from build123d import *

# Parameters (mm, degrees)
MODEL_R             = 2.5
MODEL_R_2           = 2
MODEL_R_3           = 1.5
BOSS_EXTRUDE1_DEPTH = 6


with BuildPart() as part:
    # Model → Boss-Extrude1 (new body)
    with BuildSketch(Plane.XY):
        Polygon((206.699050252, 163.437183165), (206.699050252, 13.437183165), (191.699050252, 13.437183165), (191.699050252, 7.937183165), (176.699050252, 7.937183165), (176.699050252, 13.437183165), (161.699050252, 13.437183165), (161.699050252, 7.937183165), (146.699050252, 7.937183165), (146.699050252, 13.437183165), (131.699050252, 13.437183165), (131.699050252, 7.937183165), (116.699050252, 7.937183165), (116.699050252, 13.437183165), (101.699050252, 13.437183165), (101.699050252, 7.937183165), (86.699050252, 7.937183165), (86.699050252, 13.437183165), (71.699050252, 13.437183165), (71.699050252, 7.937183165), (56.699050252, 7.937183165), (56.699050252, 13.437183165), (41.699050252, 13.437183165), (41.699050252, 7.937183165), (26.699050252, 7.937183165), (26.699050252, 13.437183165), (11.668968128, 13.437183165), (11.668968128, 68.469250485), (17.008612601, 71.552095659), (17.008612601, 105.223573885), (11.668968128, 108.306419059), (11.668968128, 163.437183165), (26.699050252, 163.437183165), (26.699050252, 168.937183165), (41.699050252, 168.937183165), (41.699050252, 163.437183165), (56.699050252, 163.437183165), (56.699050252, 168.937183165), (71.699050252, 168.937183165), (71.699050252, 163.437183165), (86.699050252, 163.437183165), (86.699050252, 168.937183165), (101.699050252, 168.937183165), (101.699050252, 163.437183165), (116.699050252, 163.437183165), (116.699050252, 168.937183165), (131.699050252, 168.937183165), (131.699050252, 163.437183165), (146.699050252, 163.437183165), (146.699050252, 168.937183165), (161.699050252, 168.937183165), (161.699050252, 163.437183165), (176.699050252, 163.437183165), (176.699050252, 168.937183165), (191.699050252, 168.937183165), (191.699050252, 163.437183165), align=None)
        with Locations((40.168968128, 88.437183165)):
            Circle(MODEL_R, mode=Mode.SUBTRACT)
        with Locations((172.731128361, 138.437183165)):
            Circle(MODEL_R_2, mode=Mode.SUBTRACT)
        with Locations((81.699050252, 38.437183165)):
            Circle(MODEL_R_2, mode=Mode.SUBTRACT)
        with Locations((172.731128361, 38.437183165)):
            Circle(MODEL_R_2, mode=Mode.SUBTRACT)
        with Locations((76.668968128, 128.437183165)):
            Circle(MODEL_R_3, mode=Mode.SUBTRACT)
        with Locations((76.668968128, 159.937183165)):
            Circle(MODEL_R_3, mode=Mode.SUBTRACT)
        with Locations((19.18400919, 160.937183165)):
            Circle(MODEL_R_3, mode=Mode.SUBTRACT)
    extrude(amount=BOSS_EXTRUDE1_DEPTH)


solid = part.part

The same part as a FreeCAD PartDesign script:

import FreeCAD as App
import Part
import Sketcher

V = App.Vector
Q = App.Units.Quantity

doc = App.newDocument("Part")
body = doc.addObject("PartDesign::Body", "Body")

# Sketch on XY plane
sketch1 = doc.addObject("Sketcher::SketchObject", "Sketch")
body.addObject(sketch1)
sketch1.AttachmentSupport = (doc.XY_Plane, [""])
sketch1.MapMode = "FlatFace"
sketch1.addGeometry([
    Part.LineSegment(V(206.7, 13.4, 0), V(206.7, 163.4, 0)),  # 0
    Part.LineSegment(V(206.7, 163.4, 0), V(191.7, 163.4, 0)),  # 1
    Part.LineSegment(V(191.7, 163.4, 0), V(191.7, 168.9, 0)),  # 2
    Part.LineSegment(V(191.7, 168.9, 0), V(176.7, 168.9, 0)),  # 3
    Part.LineSegment(V(176.7, 168.9, 0), V(176.7, 163.4, 0)),  # 4
    Part.LineSegment(V(176.7, 163.4, 0), V(161.7, 163.4, 0)),  # 5
    Part.LineSegment(V(161.7, 163.4, 0), V(161.7, 168.9, 0)),  # 6
    Part.LineSegment(V(161.7, 168.9, 0), V(146.7, 168.9, 0)),  # 7
    Part.LineSegment(V(146.7, 168.9, 0), V(146.7, 163.4, 0)),  # 8
    Part.LineSegment(V(146.7, 163.4, 0), V(131.7, 163.4, 0)),  # 9
    Part.LineSegment(V(131.7, 163.4, 0), V(131.7, 168.9, 0)),  # 10
    Part.LineSegment(V(131.7, 168.9, 0), V(116.7, 168.9, 0)),  # 11
    Part.LineSegment(V(116.7, 168.9, 0), V(116.7, 163.4, 0)),  # 12
    Part.LineSegment(V(116.7, 163.4, 0), V(101.7, 163.4, 0)),  # 13
    Part.LineSegment(V(101.7, 163.4, 0), V(101.7, 168.9, 0)),  # 14
    Part.LineSegment(V(101.7, 168.9, 0), V(86.7, 168.9, 0)),  # 15
    Part.LineSegment(V(86.7, 168.9, 0), V(86.7, 163.4, 0)),  # 16
    Part.LineSegment(V(86.7, 163.4, 0), V(71.7, 163.4, 0)),  # 17
    Part.LineSegment(V(71.7, 163.4, 0), V(71.7, 168.9, 0)),  # 18
    Part.LineSegment(V(71.7, 168.9, 0), V(56.7, 168.9, 0)),  # 19
    Part.LineSegment(V(56.7, 168.9, 0), V(56.7, 163.4, 0)),  # 20
    Part.LineSegment(V(56.7, 163.4, 0), V(41.7, 163.4, 0)),  # 21
    Part.LineSegment(V(41.7, 163.4, 0), V(41.7, 168.9, 0)),  # 22
    Part.LineSegment(V(41.7, 168.9, 0), V(26.7, 168.9, 0)),  # 23
    Part.LineSegment(V(26.7, 168.9, 0), V(26.7, 163.4, 0)),  # 24
    Part.LineSegment(V(26.7, 163.4, 0), V(11.7, 163.4, 0)),  # 25
    Part.LineSegment(V(11.7, 163.4, 0), V(11.7, 108.3, 0)),  # 26
    Part.LineSegment(V(11.7, 108.3, 0), V(17, 105.2, 0)),  # 27
    Part.LineSegment(V(17, 105.2, 0), V(17, 71.6, 0)),  # 28
    Part.LineSegment(V(17, 71.6, 0), V(11.7, 68.5, 0)),  # 29
    Part.LineSegment(V(11.7, 68.5, 0), V(11.7, 13.4, 0)),  # 30
    Part.LineSegment(V(11.7, 13.4, 0), V(26.7, 13.4, 0)),  # 31
    Part.LineSegment(V(26.7, 13.4, 0), V(26.7, 7.9, 0)),  # 32
    Part.LineSegment(V(26.7, 7.9, 0), V(41.7, 7.9, 0)),  # 33
    Part.LineSegment(V(41.7, 7.9, 0), V(41.7, 13.4, 0)),  # 34
    Part.LineSegment(V(41.7, 13.4, 0), V(56.7, 13.4, 0)),  # 35
    Part.LineSegment(V(56.7, 13.4, 0), V(56.7, 7.9, 0)),  # 36
    Part.LineSegment(V(56.7, 7.9, 0), V(71.7, 7.9, 0)),  # 37
    Part.LineSegment(V(71.7, 7.9, 0), V(71.7, 13.4, 0)),  # 38
    Part.LineSegment(V(71.7, 13.4, 0), V(86.7, 13.4, 0)),  # 39
    Part.LineSegment(V(86.7, 13.4, 0), V(86.7, 7.9, 0)),  # 40
    Part.LineSegment(V(86.7, 7.9, 0), V(101.7, 7.9, 0)),  # 41
    Part.LineSegment(V(101.7, 7.9, 0), V(101.7, 13.4, 0)),  # 42
    Part.LineSegment(V(101.7, 13.4, 0), V(116.7, 13.4, 0)),  # 43
    Part.LineSegment(V(116.7, 13.4, 0), V(116.7, 7.9, 0)),  # 44
    Part.LineSegment(V(116.7, 7.9, 0), V(131.7, 7.9, 0)),  # 45
    Part.LineSegment(V(131.7, 7.9, 0), V(131.7, 13.4, 0)),  # 46
    Part.LineSegment(V(131.7, 13.4, 0), V(146.7, 13.4, 0)),  # 47
    Part.LineSegment(V(146.7, 13.4, 0), V(146.7, 7.9, 0)),  # 48
    Part.LineSegment(V(146.7, 7.9, 0), V(161.7, 7.9, 0)),  # 49
    Part.LineSegment(V(161.7, 7.9, 0), V(161.7, 13.4, 0)),  # 50
    Part.LineSegment(V(161.7, 13.4, 0), V(176.7, 13.4, 0)),  # 51
    Part.LineSegment(V(176.7, 13.4, 0), V(176.7, 7.9, 0)),  # 52
    Part.LineSegment(V(176.7, 7.9, 0), V(191.7, 7.9, 0)),  # 53
    Part.LineSegment(V(191.7, 7.9, 0), V(191.7, 13.4, 0)),  # 54
    Part.LineSegment(V(191.7, 13.4, 0), V(206.7, 13.4, 0)),  # 55
    Part.Circle(V(172.7, 38.4, 0), V(0, 0, 1), 2),  # 56
    Part.Circle(V(81.7, 38.4, 0), V(0, 0, 1), 2),  # 57
    Part.Circle(V(40.2, 88.4, 0), V(0, 0, 1), 2.5),  # 58
    Part.Circle(V(172.7, 138.4, 0), V(0, 0, 1), 2),  # 59
    Part.Circle(V(76.7, 128.4, 0), V(0, 0, 1), 1.5),  # 60
    Part.Circle(V(76.7, 159.9, 0), V(0, 0, 1), 1.5),  # 61
    Part.Circle(V(19.2, 160.9, 0), V(0, 0, 1), 1.5),  # 62
], False)
sketch1.addConstraint([
    Sketcher.Constraint("Coincident", 0, 2, 1, 1),
    Sketcher.Constraint("Coincident", 1, 2, 2, 1),
    Sketcher.Constraint("Coincident", 2, 2, 3, 1),
    Sketcher.Constraint("Coincident", 3, 2, 4, 1),
    Sketcher.Constraint("Coincident", 4, 2, 5, 1),
    Sketcher.Constraint("Coincident", 5, 2, 6, 1),
    Sketcher.Constraint("Coincident", 6, 2, 7, 1),
    Sketcher.Constraint("Coincident", 7, 2, 8, 1),
    Sketcher.Constraint("Coincident", 8, 2, 9, 1),
    Sketcher.Constraint("Coincident", 9, 2, 10, 1),
    Sketcher.Constraint("Coincident", 10, 2, 11, 1),
    Sketcher.Constraint("Coincident", 11, 2, 12, 1),
    Sketcher.Constraint("Coincident", 12, 2, 13, 1),
    Sketcher.Constraint("Coincident", 13, 2, 14, 1),
    Sketcher.Constraint("Coincident", 14, 2, 15, 1),
    Sketcher.Constraint("Coincident", 15, 2, 16, 1),
    Sketcher.Constraint("Coincident", 16, 2, 17, 1),
    Sketcher.Constraint("Coincident", 17, 2, 18, 1),
    Sketcher.Constraint("Coincident", 18, 2, 19, 1),
    Sketcher.Constraint("Coincident", 19, 2, 20, 1),
    Sketcher.Constraint("Coincident", 20, 2, 21, 1),
    Sketcher.Constraint("Coincident", 21, 2, 22, 1),
    Sketcher.Constraint("Coincident", 22, 2, 23, 1),
    Sketcher.Constraint("Coincident", 23, 2, 24, 1),
    Sketcher.Constraint("Coincident", 24, 2, 25, 1),
    Sketcher.Constraint("Coincident", 25, 2, 26, 1),
    Sketcher.Constraint("Coincident", 26, 2, 27, 1),
    Sketcher.Constraint("Coincident", 27, 2, 28, 1),
    Sketcher.Constraint("Coincident", 28, 2, 29, 1),
    Sketcher.Constraint("Coincident", 29, 2, 30, 1),
    Sketcher.Constraint("Coincident", 30, 2, 31, 1),
    Sketcher.Constraint("Coincident", 31, 2, 32, 1),
    Sketcher.Constraint("Coincident", 32, 2, 33, 1),
    Sketcher.Constraint("Coincident", 33, 2, 34, 1),
    Sketcher.Constraint("Coincident", 34, 2, 35, 1),
    Sketcher.Constraint("Coincident", 35, 2, 36, 1),
    Sketcher.Constraint("Coincident", 36, 2, 37, 1),
    Sketcher.Constraint("Coincident", 37, 2, 38, 1),
    Sketcher.Constraint("Coincident", 38, 2, 39, 1),
    Sketcher.Constraint("Coincident", 39, 2, 40, 1),
    Sketcher.Constraint("Coincident", 40, 2, 41, 1),
    Sketcher.Constraint("Coincident", 41, 2, 42, 1),
    Sketcher.Constraint("Coincident", 42, 2, 43, 1),
    Sketcher.Constraint("Coincident", 43, 2, 44, 1),
    Sketcher.Constraint("Coincident", 44, 2, 45, 1),
    Sketcher.Constraint("Coincident", 45, 2, 46, 1),
    Sketcher.Constraint("Coincident", 46, 2, 47, 1),
    Sketcher.Constraint("Coincident", 47, 2, 48, 1),
    Sketcher.Constraint("Coincident", 48, 2, 49, 1),
    Sketcher.Constraint("Coincident", 49, 2, 50, 1),
    Sketcher.Constraint("Coincident", 50, 2, 51, 1),
    Sketcher.Constraint("Coincident", 51, 2, 52, 1),
    Sketcher.Constraint("Coincident", 52, 2, 53, 1),
    Sketcher.Constraint("Coincident", 53, 2, 54, 1),
    Sketcher.Constraint("Coincident", 54, 2, 55, 1),
    Sketcher.Constraint("Coincident", 55, 2, 0, 1),
    Sketcher.Constraint("Vertical", 0),
    Sketcher.Constraint("Horizontal", 1),
    Sketcher.Constraint("Vertical", 2),
    Sketcher.Constraint("Horizontal", 3),
    Sketcher.Constraint("Vertical", 4),
    Sketcher.Constraint("Horizontal", 5),
    Sketcher.Constraint("Vertical", 6),
    Sketcher.Constraint("Horizontal", 7),
    Sketcher.Constraint("Vertical", 8),
    Sketcher.Constraint("Horizontal", 9),
    Sketcher.Constraint("Vertical", 10),
    Sketcher.Constraint("Horizontal", 11),
    Sketcher.Constraint("Vertical", 12),
    Sketcher.Constraint("Horizontal", 13),
    Sketcher.Constraint("Vertical", 14),
    Sketcher.Constraint("Horizontal", 15),
    Sketcher.Constraint("Vertical", 16),
    Sketcher.Constraint("Horizontal", 17),
    Sketcher.Constraint("Vertical", 18),
    Sketcher.Constraint("Horizontal", 19),
    Sketcher.Constraint("Vertical", 20),
    Sketcher.Constraint("Horizontal", 21),
    Sketcher.Constraint("Vertical", 22),
    Sketcher.Constraint("Horizontal", 23),
    Sketcher.Constraint("Vertical", 24),
    Sketcher.Constraint("Horizontal", 25),
    Sketcher.Constraint("Vertical", 26),
    Sketcher.Constraint("Vertical", 28),
    Sketcher.Constraint("Vertical", 30),
    Sketcher.Constraint("Horizontal", 31),
    Sketcher.Constraint("Vertical", 32),
    Sketcher.Constraint("Horizontal", 33),
    Sketcher.Constraint("Vertical", 34),
    Sketcher.Constraint("Horizontal", 35),
    Sketcher.Constraint("Vertical", 36),
    Sketcher.Constraint("Horizontal", 37),
    Sketcher.Constraint("Vertical", 38),
    Sketcher.Constraint("Horizontal", 39),
    Sketcher.Constraint("Vertical", 40),
    Sketcher.Constraint("Horizontal", 41),
    Sketcher.Constraint("Vertical", 42),
    Sketcher.Constraint("Horizontal", 43),
    Sketcher.Constraint("Vertical", 44),
    Sketcher.Constraint("Horizontal", 45),
    Sketcher.Constraint("Vertical", 46),
    Sketcher.Constraint("Horizontal", 47),
    Sketcher.Constraint("Vertical", 48),
    Sketcher.Constraint("Horizontal", 49),
    Sketcher.Constraint("Vertical", 50),
    Sketcher.Constraint("Horizontal", 51),
    Sketcher.Constraint("Vertical", 52),
    Sketcher.Constraint("Horizontal", 53),
    Sketcher.Constraint("Vertical", 54),
    Sketcher.Constraint("Horizontal", 55),
    Sketcher.Constraint("Equal", 56, 57),
    Sketcher.Constraint("Equal", 57, 59),
    Sketcher.Constraint("Equal", 60, 61),
    Sketcher.Constraint("Equal", 61, 62),
    Sketcher.Constraint("Horizontal", 56, 3, 57, 3),
    Sketcher.Constraint("Horizontal", 1, 2, 4, 2),
    Sketcher.Constraint("Horizontal", 3, 2, 6, 2),
    Sketcher.Constraint("Horizontal", 5, 2, 8, 2),
    Sketcher.Constraint("Horizontal", 7, 2, 10, 2),
    Sketcher.Constraint("Horizontal", 9, 2, 12, 2),
    Sketcher.Constraint("Horizontal", 11, 2, 14, 2),
    Sketcher.Constraint("Horizontal", 13, 2, 16, 2),
    Sketcher.Constraint("Horizontal", 15, 2, 18, 2),
    Sketcher.Constraint("Horizontal", 17, 2, 20, 2),
    Sketcher.Constraint("Horizontal", 19, 2, 22, 2),
    Sketcher.Constraint("Horizontal", 21, 2, 24, 2),
    Sketcher.Constraint("Horizontal", 31, 2, 34, 2),
    Sketcher.Constraint("Horizontal", 33, 2, 36, 2),
    Sketcher.Constraint("Horizontal", 35, 2, 38, 2),
    Sketcher.Constraint("Horizontal", 37, 2, 40, 2),
    Sketcher.Constraint("Horizontal", 39, 2, 42, 2),
    Sketcher.Constraint("Horizontal", 41, 2, 44, 2),
    Sketcher.Constraint("Horizontal", 43, 2, 46, 2),
    Sketcher.Constraint("Horizontal", 45, 2, 48, 2),
    Sketcher.Constraint("Horizontal", 47, 2, 50, 2),
    Sketcher.Constraint("Horizontal", 49, 2, 52, 2),
    Sketcher.Constraint("Horizontal", 51, 2, 54, 2),
    Sketcher.Constraint("Vertical", 56, 3, 59, 3),
    Sketcher.Constraint("Vertical", 60, 3, 61, 3),
    Sketcher.Constraint("Vertical", 26, 2, 29, 2),
    Sketcher.Constraint("Vertical", 24, 2, 31, 2),
    Sketcher.Constraint("Vertical", 22, 2, 33, 2),
    Sketcher.Constraint("Vertical", 20, 2, 35, 2),
    Sketcher.Constraint("Vertical", 18, 2, 37, 2),
    Sketcher.Constraint("Vertical", 16, 2, 39, 2),
    Sketcher.Constraint("Vertical", 14, 2, 41, 2),
    Sketcher.Constraint("Vertical", 12, 2, 43, 2),
    Sketcher.Constraint("Vertical", 10, 2, 45, 2),
    Sketcher.Constraint("Vertical", 8, 2, 47, 2),
    Sketcher.Constraint("Vertical", 6, 2, 49, 2),
    Sketcher.Constraint("Vertical", 4, 2, 51, 2),
    Sketcher.Constraint("Vertical", 2, 2, 53, 2),
    Sketcher.Constraint("Equal", 1, 3),
    Sketcher.Constraint("Equal", 3, 5),
    Sketcher.Constraint("Equal", 5, 7),
    Sketcher.Constraint("Equal", 7, 9),
    Sketcher.Constraint("Equal", 9, 11),
    Sketcher.Constraint("Equal", 11, 13),
    Sketcher.Constraint("Equal", 13, 15),
    Sketcher.Constraint("Equal", 15, 17),
    Sketcher.Constraint("Equal", 17, 19),
    Sketcher.Constraint("Equal", 19, 21),
    Sketcher.Constraint("Equal", 21, 23),
    Sketcher.Constraint("Equal", 24, 32),
    Sketcher.Constraint("Equal", 27, 29),
    Sketcher.Constraint("Diameter", 56, 4.0),
    Sketcher.Constraint("Diameter", 58, 5.0),
    Sketcher.Constraint("Diameter", 60, 3.0),
    Sketcher.Constraint("DistanceX", 1, 2, 1, 1, 15.0),
    Sketcher.Constraint("DistanceY", 0, 1, 0, 2, 150.0),
    Sketcher.Constraint("Angle", 27, Q("-30 deg")),
    Sketcher.Constraint("DistanceY", 2, 1, 2, 2, 5.5),
    Sketcher.Constraint("DistanceY", 28, 2, 28, 1, 33.671478),
    Sketcher.Constraint("Distance", 27, 6.16569),
    Sketcher.Constraint("DistanceX", 25, 2, 25, 1, 15.030082),
    Sketcher.Constraint("DistanceY", 26, 2, 26, 1, 55.130764),
    Sketcher.Constraint("DistanceX", -1, 1, 56, 3, 172.731128),
    Sketcher.Constraint("DistanceX", -1, 1, 57, 3, 81.69905),
    Sketcher.Constraint("DistanceX", -1, 1, 58, 3, 40.168968),
    Sketcher.Constraint("DistanceX", -1, 1, 60, 3, 76.668968),
    Sketcher.Constraint("DistanceX", -1, 1, 62, 3, 19.184009),
    Sketcher.Constraint("DistanceX", -1, 1, 0, 2, 206.69905),
    Sketcher.Constraint("DistanceY", -1, 1, 26, 2, 108.306419),
    Sketcher.Constraint("DistanceY", -1, 1, 56, 3, 38.437183),
    Sketcher.Constraint("DistanceY", -1, 1, 58, 3, 88.437183),
    Sketcher.Constraint("DistanceY", -1, 1, 59, 3, 138.437183),
    Sketcher.Constraint("DistanceY", -1, 1, 60, 3, 128.437183),
    Sketcher.Constraint("DistanceY", -1, 1, 61, 3, 159.937183),
    Sketcher.Constraint("DistanceY", -1, 1, 62, 3, 160.937183),
])
pad1 = doc.addObject("PartDesign::Pad", "Pad")
body.addObject(pad1)
pad1.Profile = sketch1
pad1.Length = 6

doc.recompute()
